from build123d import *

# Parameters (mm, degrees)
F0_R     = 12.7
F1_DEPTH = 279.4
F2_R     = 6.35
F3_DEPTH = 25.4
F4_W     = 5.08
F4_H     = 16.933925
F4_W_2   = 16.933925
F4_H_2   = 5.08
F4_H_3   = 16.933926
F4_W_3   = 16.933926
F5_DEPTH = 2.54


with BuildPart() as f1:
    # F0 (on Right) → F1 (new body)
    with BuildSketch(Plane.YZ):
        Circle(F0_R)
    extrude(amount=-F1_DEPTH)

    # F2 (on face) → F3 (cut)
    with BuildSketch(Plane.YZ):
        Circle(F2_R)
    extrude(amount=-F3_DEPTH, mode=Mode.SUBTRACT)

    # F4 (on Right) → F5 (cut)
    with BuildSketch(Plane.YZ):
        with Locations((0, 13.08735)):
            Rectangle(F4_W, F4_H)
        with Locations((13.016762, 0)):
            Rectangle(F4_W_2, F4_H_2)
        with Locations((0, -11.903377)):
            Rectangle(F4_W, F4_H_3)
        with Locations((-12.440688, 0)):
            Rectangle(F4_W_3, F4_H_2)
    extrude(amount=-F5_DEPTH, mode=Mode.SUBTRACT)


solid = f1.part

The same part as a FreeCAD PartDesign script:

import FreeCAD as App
import Part
import Sketcher
Q = App.Units.Quantity

doc = App.newDocument("Part")
body = doc.addObject("PartDesign::Body", "Body")

# Sketch on YZ plane
sketch1 = doc.addObject("Sketcher::SketchObject", "Sketch")
body.addObject(sketch1)
sketch1.AttachmentSupport = (doc.YZ_Plane, [""])
sketch1.MapMode = "FlatFace"
sketch1.addGeometry(Part.Circle(App.Vector(0, 0, 0), App.Vector(0, 0, 1), 13), False)
sketch1.addConstraint([
    Sketcher.Constraint("Coincident", 0, 3, -1, 1),
    Sketcher.Constraint("Diameter", 0, Q("1 in")),
])
pad1 = doc.addObject("PartDesign::Pad", "Pad")
body.addObject(pad1)
pad1.Profile = sketch1
pad1.Length = Q("11 in")
pad1.Reversed = True

# Sketch on YZ plane
sketch2 = doc.addObject("Sketcher::SketchObject", "Sketch001")
body.addObject(sketch2)
sketch2.AttachmentSupport = (doc.YZ_Plane, [""])
sketch2.MapMode = "FlatFace"
sketch2.addGeometry(Part.Circle(App.Vector(0, 0, 0), App.Vector(0, 0, 1), 6), False)
sketch2.addConstraint([
    Sketcher.Constraint("Coincident", 0, 3, -1, 1),
    Sketcher.Constraint("Diameter", 0, Q("0.5 in")),
])
pocket1 = doc.addObject("PartDesign::Pocket", "Pocket")
body.addObject(pocket1)
pocket1.Profile = sketch2
pocket1.Length = Q("1 in")

# Sketch on YZ plane
sketch3 = doc.addObject("Sketcher::SketchObject", "Sketch002")
body.addObject(sketch3)
sketch3.AttachmentSupport = (doc.YZ_Plane, [""])
sketch3.MapMode = "FlatFace"
sketch3.addGeometry([
    Part.LineSegment(App.Vector(-3, 22, 0), App.Vector(-3, 5, 0)),  # 0
    Part.LineSegment(App.Vector(-3, 5, 0), App.Vector(3, 5, 0)),  # 1
    Part.LineSegment(App.Vector(3, 5, 0), App.Vector(3, 22, 0)),  # 2
    Part.LineSegment(App.Vector(3, 22, 0), App.Vector(-3, 22, 0)),  # 3
    Part.LineSegment(App.Vector(5, 3, 0), App.Vector(5, -3, 0)),  # 4
    Part.LineSegment(App.Vector(5, -3, 0), App.Vector(21, -3, 0)),  # 5
    Part.LineSegment(App.Vector(21, -3, 0), App.Vector(21, 3, 0)),  # 6
    Part.LineSegment(App.Vector(21, 3, 0), App.Vector(5, 3, 0)),  # 7
    Part.LineSegment(App.Vector(-3, -3, 0), App.Vector(-3, -20, 0)),  # 8
    Part.LineSegment(App.Vector(-3, -20, 0), App.Vector(3, -20, 0)),  # 9
    Part.LineSegment(App.Vector(3, -20, 0), App.Vector(3, -3, 0)),  # 10
    Part.LineSegment(App.Vector(3, -3, 0), App.Vector(-3, -3, 0)),  # 11
    Part.LineSegment(App.Vector(-21, 3, 0), App.Vector(-21, -3, 0)),  # 12
    Part.LineSegment(App.Vector(-21, -3, 0), App.Vector(-4, -3, 0)),  # 13
    Part.LineSegment(App.Vector(-4, -3, 0), App.Vector(-4, 3, 0)),  # 14
    Part.LineSegment(App.Vector(-4, 3, 0), App.Vector(-21, 3, 0)),  # 15
], False)
sketch3.addConstraint([
    Sketcher.Constraint("Coincident", 0, 2, 1, 1),
    Sketcher.Constraint("Coincident", 1, 2, 2, 1),
    Sketcher.Constraint("Coincident", 2, 2, 3, 1),
    Sketcher.Constraint("Coincident", 3, 2, 0, 1),
    Sketcher.Constraint("Coincident", 4, 2, 5, 1),
    Sketcher.Constraint("Coincident", 5, 2, 6, 1),
    Sketcher.Constraint("Coincident", 6, 2, 7, 1),
    Sketcher.Constraint("Coincident", 7, 2, 4, 1),
    Sketcher.Constraint("Coincident", 8, 2, 9, 1),
    Sketcher.Constraint("Coincident", 9, 2, 10, 1),
    Sketcher.Constraint("Coincident", 10, 2, 11, 1),
    Sketcher.Constraint("Coincident", 11, 2, 8, 1),
    Sketcher.Constraint("Coincident", 12, 2, 13, 1),
    Sketcher.Constraint("Coincident", 13, 2, 14, 1),
    Sketcher.Constraint("Coincident", 14, 2, 15, 1),
    Sketcher.Constraint("Coincident", 15, 2, 12, 1),
    Sketcher.Constraint("Vertical", 0),
    Sketcher.Constraint("Horizontal", 1),
    Sketcher.Constraint("Vertical", 2),
    Sketcher.Constraint("Horizontal", 3),
    Sketcher.Constraint("Vertical", 4),
    Sketcher.Constraint("Horizontal", 5),
    Sketcher.Constraint("Vertical", 6),
    Sketcher.Constraint("Horizontal", 7),
    Sketcher.Constraint("Vertical", 8),
    Sketcher.Constraint("Horizontal", 9),
    Sketcher.Constraint("Vertical", 10),
    Sketcher.Constraint("Horizontal", 11),
    Sketcher.Constraint("Vertical", 12),
    Sketcher.Constraint("Horizontal", 13),
    Sketcher.Constraint("Vertical", 14),
    Sketcher.Constraint("Horizontal", 15),
    Sketcher.Constraint("Horizontal", 5, 2, 12, 2),
    Sketcher.Constraint("Horizontal", 7, 2, 14, 2),
    Sketcher.Constraint("Vertical", 3, 2, 8, 2),
    Sketcher.Constraint("Vertical", 2, 2, 9, 2),
    Sketcher.Constraint("Equal", 7, 13),
    Sketcher.Constraint("Equal", 15, 0),
    Sketcher.Constraint("Equal", 11, 4),
    Sketcher.Constraint("Equal", 2, 8),
    Sketcher.Constraint("DistanceX", 1, 1, 1, 2, Q("0.2 in")),
    Sketcher.Constraint("DistanceX", 0, 2, -1, 1, Q("0.1 in")),
    Sketcher.Constraint("DistanceY", 4, 2, -1, 1, Q("0.1 in")),
    Sketcher.Constraint("DistanceX", -1, 1, 4, 2, 4.549799),
    Sketcher.Constraint("DistanceY", 10, 2, 1, 2, 8.056801),
    Sketcher.Constraint("DistanceX", 5, 1, 5, 2, 16.933925),
    Sketcher.Constraint("DistanceY", 8, 2, -1, 1, 20.37034),
    Sketcher.Constraint("DistanceX", 12, 2, -1, 1, 20.907651),
])
pocket2 = doc.addObject("PartDesign::Pocket", "Pocket001")
body.addObject(pocket2)
pocket2.Profile = sketch3
pocket2.Length = Q("0.1 in")

doc.recompute()
